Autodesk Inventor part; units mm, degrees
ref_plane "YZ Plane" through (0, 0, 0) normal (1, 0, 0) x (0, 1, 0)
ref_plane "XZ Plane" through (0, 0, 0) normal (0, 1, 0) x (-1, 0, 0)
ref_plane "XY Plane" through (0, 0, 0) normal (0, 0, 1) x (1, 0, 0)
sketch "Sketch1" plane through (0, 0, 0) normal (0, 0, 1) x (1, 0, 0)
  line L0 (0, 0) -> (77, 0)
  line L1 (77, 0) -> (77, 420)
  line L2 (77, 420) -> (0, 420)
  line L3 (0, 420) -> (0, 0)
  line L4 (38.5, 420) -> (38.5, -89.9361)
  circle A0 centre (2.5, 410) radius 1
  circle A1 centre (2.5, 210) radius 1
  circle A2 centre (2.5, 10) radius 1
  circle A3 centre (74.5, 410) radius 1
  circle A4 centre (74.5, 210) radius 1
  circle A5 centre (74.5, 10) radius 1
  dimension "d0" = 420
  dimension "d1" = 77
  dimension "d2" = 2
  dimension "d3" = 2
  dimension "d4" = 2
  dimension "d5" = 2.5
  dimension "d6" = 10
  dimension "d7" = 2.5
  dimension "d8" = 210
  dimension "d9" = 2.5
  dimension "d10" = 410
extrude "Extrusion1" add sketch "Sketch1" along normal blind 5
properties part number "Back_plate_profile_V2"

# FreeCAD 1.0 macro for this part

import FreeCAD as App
import Part
import Sketcher
from FreeCAD import Vector
Q = App.Units.Quantity


def add_polygon(sketch, points):
    """Adds a closed chain of lines whose ends are joined by coincident constraints."""
    first, n = sketch.GeometryCount, len(points)
    for a, b in zip(points, points[1:] + points[:1]):
        sketch.addGeometry(Part.LineSegment(App.Vector(*a, 0), App.Vector(*b, 0)), False)
    for i in range(n):
        sketch.addConstraint(Sketcher.Constraint("Coincident", first + i, 2, first + (i + 1) % n, 1))

doc = App.newDocument("Part")
body = doc.addObject("PartDesign::Body", "Body")

sketch1 = doc.addObject("Sketcher::SketchObject", "Sketch")
body.addObject(sketch1)
sketch1.AttachmentSupport = (doc.XY_Plane, [""])
sketch1.MapMode = "FlatFace"
add_polygon(sketch1, [(0, 420), (0, 0), (77, 0), (77, 420)])
sketch1.addGeometry(Part.Circle(Vector(2.5, 10, 0), Vector(0, 0, 1), 1), False)
sketch1.addGeometry(Part.Circle(Vector(2.5, 210, 0), Vector(0, 0, 1), 1), False)
sketch1.addGeometry(Part.Circle(Vector(2.5, 410, 0), Vector(0, 0, 1), 1), False)
sketch1.addGeometry(Part.Circle(Vector(74.5, 410, 0), Vector(0, 0, 1), 1), False)
sketch1.addGeometry(Part.Circle(Vector(74.5, 10, 0), Vector(0, 0, 1), 1), False)
sketch1.addGeometry(Part.Circle(Vector(74.5, 210, 0), Vector(0, 0, 1), 1), False)
sketch1.addConstraint([
    Sketcher.Constraint("Vertical", 0),
    Sketcher.Constraint("Horizontal", 1),
    Sketcher.Constraint("Vertical", 2),
    Sketcher.Constraint("Horizontal", 3),
    Sketcher.Constraint("Coincident", 0, 2, -1, 1),
    Sketcher.Constraint("Equal", 4, 5),
    Sketcher.Constraint("Equal", 5, 6),
    Sketcher.Constraint("Equal", 6, 7),
    Sketcher.Constraint("Equal", 7, 8),
    Sketcher.Constraint("Equal", 8, 9),
    Sketcher.Constraint("Horizontal", 6, 3, 7, 3),
    Sketcher.Constraint("Horizontal", 4, 3, 8, 3),
    Sketcher.Constraint("Horizontal", 5, 3, 9, 3),
    Sketcher.Constraint("Vertical", 4, 3, 5, 3),
    Sketcher.Constraint("Vertical", 5, 3, 6, 3),
    Sketcher.Constraint("Vertical", 7, 3, 8, 3),
    Sketcher.Constraint("Vertical", 8, 3, 9, 3),
    Sketcher.Constraint("Diameter", 4, Q("2 mm")),
    Sketcher.Constraint("DistanceX", 1, 1, 1, 2, Q("77 mm")),
    Sketcher.Constraint("DistanceY", 0, 2, 0, 1, Q("420 mm")),
    Sketcher.Constraint("DistanceY", -1, 1, 4, 3, Q("10 mm")),
    Sketcher.Constraint("DistanceY", -1, 1, 5, 3, Q("210 mm")),
    Sketcher.Constraint("DistanceY", -1, 1, 6, 3, Q("410 mm")),
    Sketcher.Constraint("DistanceX", -1, 1, 4, 3, Q("2.5 mm")),
    Sketcher.Constraint("DistanceX", 8, 3, 1, 2, Q("2.5 mm")),
])
pad1 = doc.addObject("PartDesign::Pad", "Pad")
body.addObject(pad1)
pad1.Profile = sketch1
pad1.Length = 5

doc.recompute()
